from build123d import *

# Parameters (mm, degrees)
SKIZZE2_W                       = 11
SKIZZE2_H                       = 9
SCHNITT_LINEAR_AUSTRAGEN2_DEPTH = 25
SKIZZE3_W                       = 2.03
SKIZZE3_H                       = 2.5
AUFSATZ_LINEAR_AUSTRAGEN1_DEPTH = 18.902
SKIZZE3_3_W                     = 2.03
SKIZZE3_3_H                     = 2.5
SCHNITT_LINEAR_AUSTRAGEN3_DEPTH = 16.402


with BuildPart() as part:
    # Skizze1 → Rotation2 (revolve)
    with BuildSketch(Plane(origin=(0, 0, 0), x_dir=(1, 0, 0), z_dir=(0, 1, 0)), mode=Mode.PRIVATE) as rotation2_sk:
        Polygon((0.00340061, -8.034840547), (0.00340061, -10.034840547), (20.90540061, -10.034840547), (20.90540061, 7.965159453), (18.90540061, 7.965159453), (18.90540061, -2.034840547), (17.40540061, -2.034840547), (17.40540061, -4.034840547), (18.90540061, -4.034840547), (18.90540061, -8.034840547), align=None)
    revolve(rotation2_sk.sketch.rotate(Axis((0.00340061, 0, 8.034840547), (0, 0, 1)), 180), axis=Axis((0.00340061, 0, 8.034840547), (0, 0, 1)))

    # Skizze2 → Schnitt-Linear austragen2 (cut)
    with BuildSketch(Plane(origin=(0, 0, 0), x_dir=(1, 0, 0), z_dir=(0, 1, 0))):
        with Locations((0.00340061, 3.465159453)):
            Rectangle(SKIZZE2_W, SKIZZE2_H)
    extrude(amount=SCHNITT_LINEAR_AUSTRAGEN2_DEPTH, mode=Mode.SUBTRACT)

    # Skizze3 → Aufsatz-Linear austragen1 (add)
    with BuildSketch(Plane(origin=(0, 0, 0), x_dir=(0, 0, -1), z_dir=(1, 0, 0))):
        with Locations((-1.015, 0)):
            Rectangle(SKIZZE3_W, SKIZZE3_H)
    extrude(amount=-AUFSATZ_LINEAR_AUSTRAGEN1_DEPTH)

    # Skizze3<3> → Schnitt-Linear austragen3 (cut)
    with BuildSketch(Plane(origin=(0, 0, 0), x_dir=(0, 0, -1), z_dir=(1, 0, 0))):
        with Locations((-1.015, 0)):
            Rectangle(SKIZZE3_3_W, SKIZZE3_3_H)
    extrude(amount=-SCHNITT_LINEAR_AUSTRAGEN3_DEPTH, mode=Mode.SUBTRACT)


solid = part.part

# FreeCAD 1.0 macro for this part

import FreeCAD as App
import Part
import Sketcher
from FreeCAD import Vector


def add_polygon(sketch, points):
    """Adds a closed chain of lines whose ends are joined by coincident constraints."""
    first, n = sketch.GeometryCount, len(points)
    for a, b in zip(points, points[1:] + points[:1]):
        sketch.addGeometry(Part.LineSegment(App.Vector(*a, 0), App.Vector(*b, 0)), False)
    for i in range(n):
        sketch.addConstraint(Sketcher.Constraint("Coincident", first + i, 2, first + (i + 1) % n, 1))

doc = App.newDocument("Part")
params = doc.addObject("Spreadsheet::Sheet", "Params")
for row, (alias, value) in enumerate([
    ("sketch1_width", "2 mm"),
    ("sketch1_height", "18 mm"),
    ("sketch1_height2", "10 mm"),
    ("sketch1_width2", "1.5 mm"),
    ("revolution_angle", "360 deg"),
    ("sketch2_width", "11 mm"),
    ("sketch2_height", "9 mm"),
    ("pocket1_length", "25 mm"),
    ("sketch3_width", "2.5 mm"),
    ("sketch3_height", "2.03 mm"),
    ("pad1_length", "18.902 mm"),
    ("sketch4_width", "2.5 mm"),
    ("sketch4_height", "2.03 mm"),
    ("pocket2_length", "16.402 mm"),
], start=1):
    params.set(f"A{row}", alias)
    params.set(f"B{row}", "=" + value)
    params.setAlias(f"B{row}", alias)

body = doc.addObject("PartDesign::Body", "Body")

sketch1 = doc.addObject("Sketcher::SketchObject", "Sketch")
body.addObject(sketch1)
sketch1.AttachmentSupport = (doc.XZ_Plane, [""])
sketch1.MapMode = "FlatFace"
add_polygon(sketch1, [(0.003401, 8.034841), (0.003401, 10.034841), (20.905401, 10.034841), (20.905401, -7.965159), (18.905401, -7.965159), (18.905401, 2.034841), (17.405401, 2.034841), (17.405401, 4.034841), (18.905401, 4.034841), (18.905401, 8.034841)])
sketch1.addGeometry(Part.LineSegment(Vector(0.003401, -7.965159, 0), Vector(0.003401, 10.034841, 0)), True)
sketch1.addConstraint(Sketcher.Constraint("Vertical", 0))
sketch1.addConstraint(Sketcher.Constraint("Horizontal", 1))
sketch1.addConstraint(Sketcher.Constraint("Vertical", 2))
sketch1.addConstraint(Sketcher.Constraint("Horizontal", 3))
sketch1.addConstraint(Sketcher.Constraint("Vertical", 4))
sketch1.addConstraint(Sketcher.Constraint("Horizontal", 5))
sketch1.addConstraint(Sketcher.Constraint("Vertical", 6))
sketch1.addConstraint(Sketcher.Constraint("Horizontal", 7))
sketch1.addConstraint(Sketcher.Constraint("Vertical", 8))
sketch1.addConstraint(Sketcher.Constraint("Horizontal", 9))
sketch1.addConstraint(Sketcher.Constraint("Vertical", 10))
sketch1.addConstraint(Sketcher.Constraint("Coincident", 10, 2, 0, 2))
sketch1.addConstraint(Sketcher.Constraint("Horizontal", 3, 2, 10, 1))
sketch1.addConstraint(Sketcher.Constraint("Vertical", 4, 2, 7, 2))
sketch1.addConstraint(Sketcher.Constraint("Equal", 3, 0))
sketch1.addConstraint(Sketcher.Constraint("Equal", 0, 6))
sketch1.addConstraint(Sketcher.Constraint("DistanceX", 3, 2, 3, 1, 2.0))
sketch1.addConstraint(Sketcher.Constraint("DistanceY", 2, 2, 2, 1, 18.0))
sketch1.addConstraint(Sketcher.Constraint("DistanceY", 4, 1, 4, 2, 10.0))
sketch1.addConstraint(Sketcher.Constraint("DistanceX", 5, 2, 5, 1, 1.5))
sketch1.addConstraint(Sketcher.Constraint("DistanceX", 1, 1, 1, 2, 20.902))
sketch1.addConstraint(Sketcher.Constraint("DistanceX", -1, 1, 0, 2, 0.003401))
sketch1.addConstraint(Sketcher.Constraint("DistanceY", -1, 1, 0, 2, 10.034841))
sketch1.setExpression("Constraints[26]", "Params.sketch1_width")
sketch1.setExpression("Constraints[27]", "Params.sketch1_height")
sketch1.setExpression("Constraints[28]", "Params.sketch1_height2")
sketch1.setExpression("Constraints[29]", "Params.sketch1_width2")
revolution = doc.addObject("PartDesign::Revolution", "Revolution")
body.addObject(revolution)
revolution.Profile = sketch1
revolution.ReferenceAxis = (sketch1, ["Axis0"])
revolution.setExpression("Angle", "Params.revolution_angle")

sketch2 = doc.addObject("Sketcher::SketchObject", "Sketch001")
body.addObject(sketch2)
sketch2.AttachmentSupport = (doc.XZ_Plane, [""])
sketch2.MapMode = "FlatFace"
add_polygon(sketch2, [(-5.496599, -7.965159), (-5.496599, 1.034841), (5.503401, 1.034841), (5.503401, -7.965159)])
sketch2.addConstraint(Sketcher.Constraint("Vertical", 0))
sketch2.addConstraint(Sketcher.Constraint("Horizontal", 1))
sketch2.addConstraint(Sketcher.Constraint("Vertical", 2))
sketch2.addConstraint(Sketcher.Constraint("Horizontal", 3))
sketch2.addConstraint(Sketcher.Constraint("DistanceX", 1, 1, 1, 2, 11.0))
sketch2.addConstraint(Sketcher.Constraint("DistanceY", 0, 1, 0, 2, 9.0))
sketch2.addConstraint(Sketcher.Constraint("DistanceX", 0, 2, -1, 1, 5.496599))
sketch2.addConstraint(Sketcher.Constraint("DistanceY", -1, 1, 0, 2, 1.034841))
sketch2.setExpression("Constraints[8]", "Params.sketch2_width")
sketch2.setExpression("Constraints[9]", "Params.sketch2_height")
pocket1 = doc.addObject("PartDesign::Pocket", "Pocket")
body.addObject(pocket1)
pocket1.Profile = sketch2
pocket1.setExpression("Length", "Params.pocket1_length")

sketch3 = doc.addObject("Sketcher::SketchObject", "Sketch002")
body.addObject(sketch3)
sketch3.AttachmentSupport = (doc.YZ_Plane, [""])
sketch3.MapMode = "FlatFace"
add_polygon(sketch3, [(1.25, 2.03), (-1.25, 2.03), (-1.25, 0), (1.25, 0)])
sketch3.addConstraint(Sketcher.Constraint("Horizontal", 0))
sketch3.addConstraint(Sketcher.Constraint("Vertical", 1))
sketch3.addConstraint(Sketcher.Constraint("Horizontal", 2))
sketch3.addConstraint(Sketcher.Constraint("Vertical", 3))
sketch3.addConstraint(Sketcher.Constraint("Symmetric", 1, 2, 2, 2, -1, 1))
sketch3.addConstraint(Sketcher.Constraint("DistanceX", 0, 2, 0, 1, 2.5))
sketch3.addConstraint(Sketcher.Constraint("DistanceY", 1, 2, 1, 1, 2.03))
sketch3.setExpression("Constraints[9]", "Params.sketch3_width")
sketch3.setExpression("Constraints[10]", "Params.sketch3_height")
pad1 = doc.addObject("PartDesign::Pad", "Pad")
body.addObject(pad1)
pad1.Profile = sketch3
pad1.setExpression("Length", "Params.pad1_length")
pad1.Reversed = True

sketch4 = doc.addObject("Sketcher::SketchObject", "Sketch003")
body.addObject(sketch4)
sketch4.AttachmentSupport = (doc.YZ_Plane, [""])
sketch4.MapMode = "FlatFace"
add_polygon(sketch4, [(1.25, 2.03), (-1.25, 2.03), (-1.25, 0), (1.25, 0)])
sketch4.addConstraint(Sketcher.Constraint("Horizontal", 0))
sketch4.addConstraint(Sketcher.Constraint("Vertical", 1))
sketch4.addConstraint(Sketcher.Constraint("Horizontal", 2))
sketch4.addConstraint(Sketcher.Constraint("Vertical", 3))
sketch4.addConstraint(Sketcher.Constraint("Symmetric", 1, 2, 2, 2, -1, 1))
sketch4.addConstraint(Sketcher.Constraint("DistanceX", 0, 2, 0, 1, 2.5))
sketch4.addConstraint(Sketcher.Constraint("DistanceY", 1, 2, 1, 1, 2.03))
sketch4.setExpression("Constraints[9]", "Params.sketch4_width")
sketch4.setExpression("Constraints[10]", "Params.sketch4_height")
pocket2 = doc.addObject("PartDesign::Pocket", "Pocket001")
body.addObject(pocket2)
pocket2.Profile = sketch4
pocket2.setExpression("Length", "Params.pocket2_length")

doc.recompute()
